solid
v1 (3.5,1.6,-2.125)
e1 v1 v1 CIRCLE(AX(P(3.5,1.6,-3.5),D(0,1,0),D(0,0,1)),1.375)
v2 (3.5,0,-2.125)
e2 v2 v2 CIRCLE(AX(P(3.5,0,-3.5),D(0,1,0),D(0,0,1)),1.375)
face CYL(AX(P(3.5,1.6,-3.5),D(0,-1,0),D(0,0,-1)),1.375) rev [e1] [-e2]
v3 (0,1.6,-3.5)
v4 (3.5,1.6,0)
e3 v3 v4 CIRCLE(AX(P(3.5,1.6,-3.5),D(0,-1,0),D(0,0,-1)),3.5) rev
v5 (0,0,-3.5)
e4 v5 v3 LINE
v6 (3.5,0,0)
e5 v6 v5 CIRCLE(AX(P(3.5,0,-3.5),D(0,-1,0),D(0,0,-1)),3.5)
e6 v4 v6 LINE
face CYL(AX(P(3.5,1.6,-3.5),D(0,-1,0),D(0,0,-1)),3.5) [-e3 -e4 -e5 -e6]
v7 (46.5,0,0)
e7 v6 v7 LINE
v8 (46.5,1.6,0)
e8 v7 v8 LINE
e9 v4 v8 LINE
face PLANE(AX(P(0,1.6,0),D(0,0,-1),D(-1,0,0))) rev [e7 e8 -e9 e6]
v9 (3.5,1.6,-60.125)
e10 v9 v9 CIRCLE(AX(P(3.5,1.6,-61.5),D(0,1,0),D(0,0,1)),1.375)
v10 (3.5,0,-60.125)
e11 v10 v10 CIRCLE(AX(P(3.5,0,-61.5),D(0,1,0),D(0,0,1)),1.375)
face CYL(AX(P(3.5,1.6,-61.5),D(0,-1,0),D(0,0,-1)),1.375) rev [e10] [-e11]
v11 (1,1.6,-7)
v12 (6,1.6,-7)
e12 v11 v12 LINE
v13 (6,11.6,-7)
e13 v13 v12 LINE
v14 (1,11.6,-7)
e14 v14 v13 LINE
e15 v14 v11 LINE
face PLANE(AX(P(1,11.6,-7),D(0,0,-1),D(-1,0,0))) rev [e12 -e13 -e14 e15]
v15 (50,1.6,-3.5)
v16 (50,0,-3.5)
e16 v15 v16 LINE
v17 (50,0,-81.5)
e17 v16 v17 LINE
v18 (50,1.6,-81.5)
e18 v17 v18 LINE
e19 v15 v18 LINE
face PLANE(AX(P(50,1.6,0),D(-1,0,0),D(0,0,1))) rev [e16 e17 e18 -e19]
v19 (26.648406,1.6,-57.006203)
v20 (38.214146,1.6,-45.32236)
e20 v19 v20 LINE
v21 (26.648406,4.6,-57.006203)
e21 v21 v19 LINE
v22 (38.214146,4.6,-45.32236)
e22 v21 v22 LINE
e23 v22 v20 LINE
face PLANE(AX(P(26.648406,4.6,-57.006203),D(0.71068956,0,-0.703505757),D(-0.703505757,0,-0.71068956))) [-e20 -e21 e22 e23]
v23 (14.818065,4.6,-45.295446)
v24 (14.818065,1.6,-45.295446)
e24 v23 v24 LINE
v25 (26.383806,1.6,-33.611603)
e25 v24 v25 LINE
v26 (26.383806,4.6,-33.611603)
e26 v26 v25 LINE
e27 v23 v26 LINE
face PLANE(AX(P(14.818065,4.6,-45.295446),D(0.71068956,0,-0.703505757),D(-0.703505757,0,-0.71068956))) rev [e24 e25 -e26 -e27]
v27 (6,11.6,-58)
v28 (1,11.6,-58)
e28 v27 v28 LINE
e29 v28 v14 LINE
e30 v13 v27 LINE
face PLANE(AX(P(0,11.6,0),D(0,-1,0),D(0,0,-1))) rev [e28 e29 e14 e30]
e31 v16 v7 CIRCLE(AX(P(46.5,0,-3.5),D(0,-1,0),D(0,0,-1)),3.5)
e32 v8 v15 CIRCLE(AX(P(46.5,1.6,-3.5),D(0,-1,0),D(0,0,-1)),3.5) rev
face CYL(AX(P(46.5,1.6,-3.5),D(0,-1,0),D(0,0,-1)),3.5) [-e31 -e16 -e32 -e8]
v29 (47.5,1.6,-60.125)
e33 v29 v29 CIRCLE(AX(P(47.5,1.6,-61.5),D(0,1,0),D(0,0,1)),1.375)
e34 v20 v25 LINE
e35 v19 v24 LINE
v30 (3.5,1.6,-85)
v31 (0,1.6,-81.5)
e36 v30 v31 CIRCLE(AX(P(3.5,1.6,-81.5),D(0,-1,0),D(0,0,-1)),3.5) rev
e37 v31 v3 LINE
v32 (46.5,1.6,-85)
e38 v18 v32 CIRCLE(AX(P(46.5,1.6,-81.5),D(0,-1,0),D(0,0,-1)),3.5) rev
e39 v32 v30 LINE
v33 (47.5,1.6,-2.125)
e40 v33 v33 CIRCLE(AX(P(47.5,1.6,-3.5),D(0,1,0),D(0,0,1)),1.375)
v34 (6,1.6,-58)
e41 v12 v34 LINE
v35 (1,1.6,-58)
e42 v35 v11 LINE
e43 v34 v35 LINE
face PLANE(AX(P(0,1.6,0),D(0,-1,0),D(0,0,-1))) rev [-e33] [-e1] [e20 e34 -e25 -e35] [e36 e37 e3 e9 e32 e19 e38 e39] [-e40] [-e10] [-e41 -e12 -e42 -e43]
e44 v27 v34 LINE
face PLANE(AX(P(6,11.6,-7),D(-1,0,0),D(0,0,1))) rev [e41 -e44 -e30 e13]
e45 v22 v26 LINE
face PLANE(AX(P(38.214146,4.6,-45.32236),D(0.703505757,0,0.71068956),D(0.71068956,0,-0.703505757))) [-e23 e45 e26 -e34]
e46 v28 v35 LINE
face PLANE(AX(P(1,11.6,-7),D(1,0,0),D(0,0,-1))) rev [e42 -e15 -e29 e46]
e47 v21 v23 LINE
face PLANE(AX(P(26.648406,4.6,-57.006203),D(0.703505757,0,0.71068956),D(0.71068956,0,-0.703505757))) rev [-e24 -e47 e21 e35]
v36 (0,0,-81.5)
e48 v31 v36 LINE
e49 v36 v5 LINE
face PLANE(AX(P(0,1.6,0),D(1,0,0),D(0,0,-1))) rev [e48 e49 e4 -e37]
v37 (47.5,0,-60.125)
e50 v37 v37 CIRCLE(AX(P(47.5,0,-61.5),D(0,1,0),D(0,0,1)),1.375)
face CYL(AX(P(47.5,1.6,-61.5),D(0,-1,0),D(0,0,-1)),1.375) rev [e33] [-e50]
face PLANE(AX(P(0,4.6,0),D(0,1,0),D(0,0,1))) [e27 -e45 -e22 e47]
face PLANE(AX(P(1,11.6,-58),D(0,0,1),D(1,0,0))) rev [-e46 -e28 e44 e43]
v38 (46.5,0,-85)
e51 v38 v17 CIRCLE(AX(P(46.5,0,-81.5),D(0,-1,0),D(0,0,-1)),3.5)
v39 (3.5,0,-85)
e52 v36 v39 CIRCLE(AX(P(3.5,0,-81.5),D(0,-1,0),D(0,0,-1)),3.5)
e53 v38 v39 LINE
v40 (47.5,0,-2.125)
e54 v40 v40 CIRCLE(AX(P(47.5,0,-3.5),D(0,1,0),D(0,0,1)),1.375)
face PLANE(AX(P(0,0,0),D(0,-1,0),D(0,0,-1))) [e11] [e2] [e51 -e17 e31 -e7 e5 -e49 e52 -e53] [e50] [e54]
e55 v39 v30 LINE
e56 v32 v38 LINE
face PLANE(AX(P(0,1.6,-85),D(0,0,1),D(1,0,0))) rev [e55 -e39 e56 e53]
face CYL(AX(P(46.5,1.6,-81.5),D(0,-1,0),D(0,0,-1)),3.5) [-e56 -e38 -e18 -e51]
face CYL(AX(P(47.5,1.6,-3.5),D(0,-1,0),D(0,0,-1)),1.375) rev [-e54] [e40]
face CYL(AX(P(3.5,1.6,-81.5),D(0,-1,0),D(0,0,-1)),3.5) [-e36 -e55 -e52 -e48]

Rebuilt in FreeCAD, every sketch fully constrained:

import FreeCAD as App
import Part
import Sketcher
Q = App.Units.Quantity


def edges_at(feature, points):
    """Names of the edges that pass closest to the given points."""
    edges = feature.Shape.Edges
    near = lambda p: min(range(len(edges)), key=lambda i: edges[i].distToShape(Part.Vertex(*p))[0])
    return sorted({f"Edge{near(p) + 1}" for p in points})

doc = App.newDocument("Part")
body = doc.addObject("PartDesign::Body", "Body")

sketch1 = doc.addObject("Sketcher::SketchObject", "Sketch")
body.addObject(sketch1)
sketch1.AttachmentSupport = (doc.XZ_Plane, [""])
sketch1.MapMode = "FlatFace"
sketch1.addGeometry([
    Part.LineSegment(App.Vector(0, -85, 0), App.Vector(0, 0, 0)),
    Part.LineSegment(App.Vector(0, 0, 0), App.Vector(50, 0, 0)),
    Part.LineSegment(App.Vector(50, 0, 0), App.Vector(50, -85, 0)),
    Part.LineSegment(App.Vector(50, -85, 0), App.Vector(0, -85, 0)),
    Part.Circle(App.Vector(3.5, -3.5, 0), App.Vector(0, 0, 1), 1.4),
    Part.Circle(App.Vector(47.5, -3.5, 0), App.Vector(0, 0, 1), 1.4),
    Part.Circle(App.Vector(3.5, -61.5, 0), App.Vector(0, 0, 1), 1.4),
    Part.Circle(App.Vector(47.5, -61.5, 0), App.Vector(0, 0, 1), 1.4),
], False)
sketch1.addConstraint([
    Sketcher.Constraint("Coincident", 0, 2, 1, 1),
    Sketcher.Constraint("Coincident", 1, 2, 2, 1),
    Sketcher.Constraint("Coincident", 2, 2, 3, 1),
    Sketcher.Constraint("Coincident", 3, 2, 0, 1),
    Sketcher.Constraint("Vertical", 0),
    Sketcher.Constraint("Horizontal", 1),
    Sketcher.Constraint("Vertical", 2),
    Sketcher.Constraint("Horizontal", 3),
    Sketcher.Constraint("Coincident", 0, 2, -1, 1),
    Sketcher.Constraint("Equal", 4, 5),
    Sketcher.Constraint("Equal", 5, 6),
    Sketcher.Constraint("Equal", 6, 7),
    Sketcher.Constraint("Horizontal", 4, 3, 5, 3),
    Sketcher.Constraint("Horizontal", 6, 3, 7, 3),
    Sketcher.Constraint("Vertical", 4, 3, 6, 3),
    Sketcher.Constraint("Vertical", 5, 3, 7, 3),
    Sketcher.Constraint("Diameter", 4, Q("2.75 mm")),
    Sketcher.Constraint("DistanceX", 1, 1, 1, 2, Q("50 mm")),
    Sketcher.Constraint("DistanceY", 0, 1, 0, 2, Q("85 mm")),
    Sketcher.Constraint("DistanceX", 4, 3, 5, 3, Q("44 mm")),
    Sketcher.Constraint("DistanceY", 6, 3, 4, 3, Q("58 mm")),
    Sketcher.Constraint("DistanceX", -1, 1, 4, 3, Q("3.5 mm")),
    Sketcher.Constraint("DistanceY", 4, 3, -1, 1, Q("3.5 mm")),
])
pad1 = doc.addObject("PartDesign::Pad", "Pad")
body.addObject(pad1)
pad1.Profile = sketch1
pad1.Length = 1.6
pad1.Reversed = True
doc.recompute()

fillet = doc.addObject("PartDesign::Fillet", "Fillet")
body.addObject(fillet)
fillet.Base = (pad1, edges_at(pad1, [
    (0, 0.8, -85),
    (50, 0.8, -85),
    (50, 0.8, 0),
    (0, 0.8, 0),
]))
fillet.Radius = 3.5

sketch2 = doc.addObject("Sketcher::SketchObject", "Sketch001")
body.addObject(sketch2)
sketch2.AttachmentSupport = (doc.XZ_Plane, [""])
sketch2.MapMode = "FlatFace"
sketch2.AttachmentOffset = App.Placement(App.Vector(0, 0, -1.6), App.Rotation())
sketch2.addGeometry([
    Part.LineSegment(App.Vector(1, -58, 0), App.Vector(1, -7, 0)),
    Part.LineSegment(App.Vector(1, -7, 0), App.Vector(6, -7, 0)),
    Part.LineSegment(App.Vector(6, -7, 0), App.Vector(6, -58, 0)),
    Part.LineSegment(App.Vector(6, -58, 0), App.Vector(1, -58, 0)),
], False)
sketch2.addConstraint([
    Sketcher.Constraint("Coincident", 0, 2, 1, 1),
    Sketcher.Constraint("Coincident", 1, 2, 2, 1),
    Sketcher.Constraint("Coincident", 2, 2, 3, 1),
    Sketcher.Constraint("Coincident", 3, 2, 0, 1),
    Sketcher.Constraint("Vertical", 0),
    Sketcher.Constraint("Horizontal", 1),
    Sketcher.Constraint("Vertical", 2),
    Sketcher.Constraint("Horizontal", 3),
    Sketcher.Constraint("DistanceX", 1, 1, 1, 2, Q("5 mm")),
    Sketcher.Constraint("DistanceY", 0, 1, 0, 2, Q("51 mm")),
    Sketcher.Constraint("DistanceX", -1, 1, 0, 2, Q("1 mm")),
    Sketcher.Constraint("DistanceY", 0, 2, -1, 1, Q("7 mm")),
])
pad2 = doc.addObject("PartDesign::Pad", "Pad001")
body.addObject(pad2)
pad2.Profile = sketch2
pad2.Length = 10
pad2.Reversed = True

sketch3 = doc.addObject("Sketcher::SketchObject", "Sketch002")
body.addObject(sketch3)
sketch3.AttachmentSupport = (doc.XZ_Plane, [""])
sketch3.MapMode = "FlatFace"
sketch3.AttachmentOffset = App.Placement(App.Vector(0, 0, -1.6), App.Rotation())
sketch3.addGeometry([
    Part.LineSegment(App.Vector(38, -45, 0), App.Vector(27, -57, 0)),
    Part.LineSegment(App.Vector(27, -57, 0), App.Vector(15, -45, 0)),
    Part.LineSegment(App.Vector(15, -45, 0), App.Vector(26, -34, 0)),
    Part.LineSegment(App.Vector(26, -34, 0), App.Vector(38, -45, 0)),
], False)
sketch3.addConstraint([
    Sketcher.Constraint("Coincident", 0, 2, 1, 1),
    Sketcher.Constraint("Coincident", 1, 2, 2, 1),
    Sketcher.Constraint("Coincident", 2, 2, 3, 1),
    Sketcher.Constraint("Coincident", 3, 2, 0, 1),
    Sketcher.Constraint("Perpendicular", 0, 1),
    Sketcher.Constraint("Perpendicular", 1, 2),
    Sketcher.Constraint("Perpendicular", 2, 3),
    Sketcher.Constraint("DistanceX", 2, 2, 0, 2, Q("0.2646 mm")),
    Sketcher.Constraint("DistanceY", 0, 2, 2, 2, Q("23.3946 mm")),
    Sketcher.Constraint("Distance", 0, Q("16.440151 mm")),
    Sketcher.Constraint("DistanceY", 3, 2, -1, 1, Q("45.32236 mm")),
    Sketcher.Constraint("DistanceX", -1, 1, 0, 2, Q("26.648406 mm")),
])
pad3 = doc.addObject("PartDesign::Pad", "Pad002")
body.addObject(pad3)
pad3.Profile = sketch3
pad3.Length = 3
pad3.Reversed = True

doc.recompute()
